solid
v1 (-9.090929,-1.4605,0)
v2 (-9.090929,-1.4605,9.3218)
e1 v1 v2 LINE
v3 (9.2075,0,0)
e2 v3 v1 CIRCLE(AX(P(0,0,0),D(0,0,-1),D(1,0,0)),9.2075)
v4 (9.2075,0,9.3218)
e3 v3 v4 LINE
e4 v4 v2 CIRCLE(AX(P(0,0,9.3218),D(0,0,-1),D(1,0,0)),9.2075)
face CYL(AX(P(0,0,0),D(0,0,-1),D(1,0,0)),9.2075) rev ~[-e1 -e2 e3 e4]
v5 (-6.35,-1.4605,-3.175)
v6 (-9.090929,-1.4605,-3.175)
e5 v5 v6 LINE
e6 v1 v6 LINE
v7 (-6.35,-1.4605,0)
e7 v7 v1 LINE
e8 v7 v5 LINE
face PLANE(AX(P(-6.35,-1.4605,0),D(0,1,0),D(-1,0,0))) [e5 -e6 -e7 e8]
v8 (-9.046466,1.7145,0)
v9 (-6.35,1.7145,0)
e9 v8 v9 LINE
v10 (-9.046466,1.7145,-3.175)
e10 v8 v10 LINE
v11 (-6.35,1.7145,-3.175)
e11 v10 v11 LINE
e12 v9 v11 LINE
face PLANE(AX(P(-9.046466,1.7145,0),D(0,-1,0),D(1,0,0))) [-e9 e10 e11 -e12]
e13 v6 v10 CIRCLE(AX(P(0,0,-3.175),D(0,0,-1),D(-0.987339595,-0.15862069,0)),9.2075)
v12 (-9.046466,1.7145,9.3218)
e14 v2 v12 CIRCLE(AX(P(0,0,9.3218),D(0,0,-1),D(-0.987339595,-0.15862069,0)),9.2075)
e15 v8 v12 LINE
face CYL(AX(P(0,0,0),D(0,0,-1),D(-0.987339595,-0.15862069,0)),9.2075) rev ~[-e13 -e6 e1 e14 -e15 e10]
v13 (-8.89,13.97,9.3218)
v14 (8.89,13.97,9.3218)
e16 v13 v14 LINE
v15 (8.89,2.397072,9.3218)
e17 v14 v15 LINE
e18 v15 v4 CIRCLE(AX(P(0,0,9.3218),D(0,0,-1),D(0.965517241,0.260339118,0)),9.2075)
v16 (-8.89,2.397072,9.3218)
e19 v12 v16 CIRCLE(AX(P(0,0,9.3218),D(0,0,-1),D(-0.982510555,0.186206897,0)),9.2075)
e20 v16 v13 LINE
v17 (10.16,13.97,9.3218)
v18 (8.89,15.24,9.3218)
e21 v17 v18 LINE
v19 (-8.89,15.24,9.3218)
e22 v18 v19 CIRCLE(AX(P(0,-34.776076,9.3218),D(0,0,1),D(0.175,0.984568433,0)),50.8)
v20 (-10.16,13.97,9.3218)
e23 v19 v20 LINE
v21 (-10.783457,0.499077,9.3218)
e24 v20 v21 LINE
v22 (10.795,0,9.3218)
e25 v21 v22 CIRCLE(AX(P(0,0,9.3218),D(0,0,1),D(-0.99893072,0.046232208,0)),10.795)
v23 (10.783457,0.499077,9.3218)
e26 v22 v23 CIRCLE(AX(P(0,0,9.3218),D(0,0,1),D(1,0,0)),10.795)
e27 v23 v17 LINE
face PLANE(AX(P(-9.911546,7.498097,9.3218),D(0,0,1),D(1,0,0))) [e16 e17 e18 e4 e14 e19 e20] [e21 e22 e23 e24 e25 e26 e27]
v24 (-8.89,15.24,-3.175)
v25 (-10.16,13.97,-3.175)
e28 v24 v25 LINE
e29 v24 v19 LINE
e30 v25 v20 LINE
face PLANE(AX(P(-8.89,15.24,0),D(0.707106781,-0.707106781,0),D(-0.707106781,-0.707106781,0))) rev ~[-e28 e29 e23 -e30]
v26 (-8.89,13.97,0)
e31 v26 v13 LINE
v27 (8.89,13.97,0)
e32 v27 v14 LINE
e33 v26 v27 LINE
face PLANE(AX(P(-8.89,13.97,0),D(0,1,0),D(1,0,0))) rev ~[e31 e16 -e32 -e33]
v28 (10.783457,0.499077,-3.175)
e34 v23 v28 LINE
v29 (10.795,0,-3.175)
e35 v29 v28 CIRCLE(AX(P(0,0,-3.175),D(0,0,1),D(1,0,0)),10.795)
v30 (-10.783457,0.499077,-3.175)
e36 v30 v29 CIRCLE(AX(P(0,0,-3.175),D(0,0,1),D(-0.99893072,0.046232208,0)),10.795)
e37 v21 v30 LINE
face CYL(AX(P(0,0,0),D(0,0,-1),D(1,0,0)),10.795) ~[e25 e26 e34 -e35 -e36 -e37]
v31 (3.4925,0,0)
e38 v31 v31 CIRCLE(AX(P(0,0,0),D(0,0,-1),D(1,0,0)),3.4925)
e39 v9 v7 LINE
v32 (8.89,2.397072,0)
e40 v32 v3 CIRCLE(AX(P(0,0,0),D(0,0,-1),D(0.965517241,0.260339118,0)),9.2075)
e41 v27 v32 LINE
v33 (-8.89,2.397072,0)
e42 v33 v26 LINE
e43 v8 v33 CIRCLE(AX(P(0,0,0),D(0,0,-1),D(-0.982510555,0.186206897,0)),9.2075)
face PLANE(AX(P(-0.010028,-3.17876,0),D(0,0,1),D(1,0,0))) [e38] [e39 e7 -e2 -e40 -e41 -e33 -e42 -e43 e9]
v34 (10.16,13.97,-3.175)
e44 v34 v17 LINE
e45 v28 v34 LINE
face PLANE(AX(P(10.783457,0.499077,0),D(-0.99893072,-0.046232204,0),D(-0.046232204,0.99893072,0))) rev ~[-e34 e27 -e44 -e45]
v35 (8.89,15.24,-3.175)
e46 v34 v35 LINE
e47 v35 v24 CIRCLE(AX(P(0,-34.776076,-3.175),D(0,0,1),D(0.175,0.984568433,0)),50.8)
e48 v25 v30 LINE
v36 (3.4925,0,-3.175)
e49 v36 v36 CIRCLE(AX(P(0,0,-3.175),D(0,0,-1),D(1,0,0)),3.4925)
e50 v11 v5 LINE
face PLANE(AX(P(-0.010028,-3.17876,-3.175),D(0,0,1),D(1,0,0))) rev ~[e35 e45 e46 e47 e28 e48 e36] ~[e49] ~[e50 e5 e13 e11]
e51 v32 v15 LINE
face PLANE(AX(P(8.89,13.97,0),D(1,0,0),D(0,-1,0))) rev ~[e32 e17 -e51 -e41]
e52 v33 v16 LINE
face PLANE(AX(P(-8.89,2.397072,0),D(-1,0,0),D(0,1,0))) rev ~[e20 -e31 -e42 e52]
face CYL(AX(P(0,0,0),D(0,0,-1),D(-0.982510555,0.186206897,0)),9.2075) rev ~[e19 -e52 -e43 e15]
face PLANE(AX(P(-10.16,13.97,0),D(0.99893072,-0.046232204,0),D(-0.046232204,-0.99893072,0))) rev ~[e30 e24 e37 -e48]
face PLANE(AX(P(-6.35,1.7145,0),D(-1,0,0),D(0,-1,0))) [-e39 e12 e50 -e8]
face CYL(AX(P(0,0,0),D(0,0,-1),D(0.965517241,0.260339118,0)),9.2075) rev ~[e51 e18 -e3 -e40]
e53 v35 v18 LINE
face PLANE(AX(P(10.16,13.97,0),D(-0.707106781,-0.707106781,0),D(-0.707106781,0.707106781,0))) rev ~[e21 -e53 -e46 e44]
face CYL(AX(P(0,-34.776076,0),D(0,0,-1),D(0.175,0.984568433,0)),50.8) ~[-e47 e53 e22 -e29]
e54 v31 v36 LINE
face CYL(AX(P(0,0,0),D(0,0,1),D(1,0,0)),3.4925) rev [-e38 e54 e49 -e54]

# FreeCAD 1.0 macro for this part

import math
import FreeCAD as App
import Part
import Sketcher

V = App.Vector
Q = App.Units.Quantity

doc = App.newDocument("Part")
body = doc.addObject("PartDesign::Body", "Body")

sketch1 = body.newObject("Sketcher::SketchObject", "Sketch")
sketch1.AttachmentSupport = (doc.getObject("XY_Plane"), [""])
sketch1.MapMode = "FlatFace"
sketch1.addGeometry([
    Part.LineSegment(V(10.78, 0.5, 0), V(10.16, 13.97, 0)),
    Part.LineSegment(V(10.16, 13.97, 0), V(8.89, 15.24, 0)),
    Part.ArcOfCircle(Part.Circle(V(0, -34.78, 0), V(0, 0, 1), 50.8), math.radians(80), math.radians(100)),
    Part.LineSegment(V(-8.89, 15.24, 0), V(-10.16, 13.97, 0)),
    Part.LineSegment(V(-10.16, 13.97, 0), V(-10.78, 0.5, 0)),
    Part.ArcOfCircle(Part.Circle(V(0, 0, 0), V(0, 0, 1), 10.79), math.radians(177), math.radians(360)),
    Part.ArcOfCircle(Part.Circle(V(0, 0, 0), V(0, 0, 1), 10.79), math.radians(0), math.radians(2.65)),
    Part.ArcOfCircle(Part.Circle(V(0, 0, 0), V(0, 0, 1), 9.21), math.radians(169.27), math.radians(189.13)),
    Part.LineSegment(V(-9.05, 1.71, 0), V(-6.35, 1.71, 0)),
    Part.LineSegment(V(-6.35, 1.71, 0), V(-6.35, -1.46, 0)),
    Part.LineSegment(V(-6.35, -1.46, 0), V(-9.09, -1.46, 0)),
    Part.Circle(V(0, 0, 0), V(0, 0, 1), 3.49),
], False)
sketch1.addConstraint([
    Sketcher.Constraint("Coincident", 0, 2, 1, 1),
    Sketcher.Constraint("Coincident", 1, 2, 2, 1),
    Sketcher.Constraint("Coincident", 2, 2, 3, 1),
    Sketcher.Constraint("Coincident", 3, 2, 4, 1),
    Sketcher.Constraint("Tangent", 4, 2, 5, 1),
    Sketcher.Constraint("Tangent", 5, 2, 6, 1),
    Sketcher.Constraint("Tangent", 6, 2, 0, 1),
    Sketcher.Constraint("Coincident", 7, 1, 8, 1),
    Sketcher.Constraint("Coincident", 8, 2, 9, 1),
    Sketcher.Constraint("Coincident", 9, 2, 10, 1),
    Sketcher.Constraint("Coincident", 10, 2, 7, 2),
    Sketcher.Constraint("Horizontal", 8),
    Sketcher.Constraint("Vertical", 9),
    Sketcher.Constraint("Horizontal", 10),
    Sketcher.Constraint("Coincident", 5, 3, -1, 1),
    Sketcher.Constraint("Coincident", 7, 3, -1, 1),
    Sketcher.Constraint("Coincident", 11, 3, -1, 1),
    Sketcher.Constraint("Equal", 5, 6),
    Sketcher.Constraint("Symmetric", 1, 2, 2, 2, -2),
    Sketcher.Constraint("Symmetric", 0, 2, 3, 2, -2),
    Sketcher.Constraint("PointOnObject", 5, 2, -1),
    Sketcher.Constraint("Perpendicular", 1, 3),
    Sketcher.Constraint("Radius", 2, Q("2 in")),
    Sketcher.Constraint("Diameter", 11, Q("0.275 in")),
    Sketcher.Constraint("Radius", 5, Q("0.425 in")),
    Sketcher.Constraint("DistanceX", -1, 1, 0, 2, Q("0.4 in")),
    Sketcher.Constraint("DistanceY", -1, 1, 1, 2, Q("0.6 in")),
    Sketcher.Constraint("Radius", 7, Q("0.3625 in")),
    Sketcher.Constraint("DistanceX", 2, 2, 1, 2, Q("0.7 in")),
    Sketcher.Constraint("DistanceY", 9, 2, 9, 1, Q("0.125 in")),
    Sketcher.Constraint("DistanceX", 8, 2, -1, 1, Q("0.25 in")),
    Sketcher.Constraint("DistanceY", -1, 1, 7, 1, Q("0.0675 in")),
])
pad1 = body.newObject("PartDesign::Pad", "Pad")
pad1.Profile = sketch1
pad1.Length = Q("0.125 in")
pad1.Reversed = True

sketch2 = body.newObject("Sketcher::SketchObject", "Sketch001")
sketch2.AttachmentSupport = (doc.getObject("XY_Plane"), [""])
sketch2.MapMode = "FlatFace"
sketch2.addGeometry([
    Part.LineSegment(V(10.78, 0.5, 0), V(10.16, 13.97, 0)),
    Part.LineSegment(V(10.16, 13.97, 0), V(8.89, 15.24, 0)),
    Part.ArcOfCircle(Part.Circle(V(0, -34.78, 0), V(0, 0, 1), 50.8), math.radians(80), math.radians(100)),
    Part.LineSegment(V(-8.89, 15.24, 0), V(-10.16, 13.97, 0)),
    Part.LineSegment(V(-10.16, 13.97, 0), V(-10.78, 0.5, 0)),
    Part.ArcOfCircle(Part.Circle(V(0, 0, 0), V(0, 0, 1), 10.79), math.radians(177), math.radians(360)),
    Part.ArcOfCircle(Part.Circle(V(0, 0, 0), V(0, 0, 1), 10.79), math.radians(0), math.radians(2.65)),
    Part.LineSegment(V(-8.89, 13.97, 0), V(8.89, 13.97, 0)),
    Part.LineSegment(V(8.89, 13.97, 0), V(8.89, 2.4, 0)),
    Part.ArcOfCircle(Part.Circle(V(0, 0, 0), V(0, 0, 1), 9.21), math.radians(0), math.radians(15.09)),
    Part.ArcOfCircle(Part.Circle(V(0, 0, 0), V(0, 0, 1), 9.21), math.radians(-171), math.radians(0)),
    Part.ArcOfCircle(Part.Circle(V(0, 0, 0), V(0, 0, 1), 9.21), math.radians(169.27), math.radians(189.13)),
    Part.ArcOfCircle(Part.Circle(V(0, 0, 0), V(0, 0, 1), 9.21), math.radians(164.91), math.radians(169.27)),
    Part.LineSegment(V(-8.89, 2.4, 0), V(-8.89, 13.97, 0)),
], False)
sketch2.addConstraint([
    Sketcher.Constraint("Coincident", 0, 2, 1, 1),
    Sketcher.Constraint("Coincident", 1, 2, 2, 1),
    Sketcher.Constraint("Coincident", 2, 2, 3, 1),
    Sketcher.Constraint("Coincident", 3, 2, 4, 1),
    Sketcher.Constraint("Tangent", 4, 2, 5, 1),
    Sketcher.Constraint("Tangent", 5, 2, 6, 1),
    Sketcher.Constraint("Tangent", 6, 2, 0, 1),
    Sketcher.Constraint("Coincident", 7, 2, 8, 1),
    Sketcher.Constraint("Coincident", 8, 2, 9, 2),
    Sketcher.Constraint("Tangent", 9, 1, 10, 2),
    Sketcher.Constraint("Tangent", 10, 1, 11, 2),
    Sketcher.Constraint("Tangent", 11, 1, 12, 2),
    Sketcher.Constraint("Coincident", 12, 1, 13, 1),
    Sketcher.Constraint("Coincident", 13, 2, 7, 1),
    Sketcher.Constraint("Horizontal", 7),
    Sketcher.Constraint("Vertical", 8),
    Sketcher.Constraint("Vertical", 13),
    Sketcher.Constraint("Coincident", 5, 3, -1, 1),
    Sketcher.Constraint("Coincident", 9, 3, -1, 1),
    Sketcher.Constraint("Coincident", 11, 3, -1, 1),
    Sketcher.Constraint("Equal", 5, 6),
    Sketcher.Constraint("Equal", 11, 12),
    Sketcher.Constraint("Symmetric", 1, 2, 2, 2, -2),
    Sketcher.Constraint("Symmetric", 0, 2, 3, 2, -2),
    Sketcher.Constraint("PointOnObject", 5, 2, -1),
    Sketcher.Constraint("PointOnObject", 9, 1, -1),
    Sketcher.Constraint("Perpendicular", 1, 3),
    Sketcher.Constraint("Horizontal", 3, 2, 7, 2),
    Sketcher.Constraint("Horizontal", 8, 2, 12, 1),
    Sketcher.Constraint("Vertical", 1, 2, 7, 2),
    Sketcher.Constraint("Radius", 2, Q("2 in")),
    Sketcher.Constraint("DistanceX", 7, 1, 7, 2, Q("0.7 in")),
    Sketcher.Constraint("Radius", 5, Q("0.425 in")),
    Sketcher.Constraint("DistanceX", -1, 1, 0, 2, Q("0.4 in")),
    Sketcher.Constraint("DistanceY", -1, 1, 1, 2, Q("0.6 in")),
    Sketcher.Constraint("Radius", 9, Q("0.3625 in")),
    Sketcher.Constraint("DistanceY", 10, 1, 11, 1, Q("0.125 in")),
    Sketcher.Constraint("DistanceY", 10, 1, -1, 1, Q("0.0575 in")),
])
pad2 = body.newObject("PartDesign::Pad", "Pad001")
pad2.Profile = sketch2
pad2.Length = Q("0.367 in")

doc.recompute()
